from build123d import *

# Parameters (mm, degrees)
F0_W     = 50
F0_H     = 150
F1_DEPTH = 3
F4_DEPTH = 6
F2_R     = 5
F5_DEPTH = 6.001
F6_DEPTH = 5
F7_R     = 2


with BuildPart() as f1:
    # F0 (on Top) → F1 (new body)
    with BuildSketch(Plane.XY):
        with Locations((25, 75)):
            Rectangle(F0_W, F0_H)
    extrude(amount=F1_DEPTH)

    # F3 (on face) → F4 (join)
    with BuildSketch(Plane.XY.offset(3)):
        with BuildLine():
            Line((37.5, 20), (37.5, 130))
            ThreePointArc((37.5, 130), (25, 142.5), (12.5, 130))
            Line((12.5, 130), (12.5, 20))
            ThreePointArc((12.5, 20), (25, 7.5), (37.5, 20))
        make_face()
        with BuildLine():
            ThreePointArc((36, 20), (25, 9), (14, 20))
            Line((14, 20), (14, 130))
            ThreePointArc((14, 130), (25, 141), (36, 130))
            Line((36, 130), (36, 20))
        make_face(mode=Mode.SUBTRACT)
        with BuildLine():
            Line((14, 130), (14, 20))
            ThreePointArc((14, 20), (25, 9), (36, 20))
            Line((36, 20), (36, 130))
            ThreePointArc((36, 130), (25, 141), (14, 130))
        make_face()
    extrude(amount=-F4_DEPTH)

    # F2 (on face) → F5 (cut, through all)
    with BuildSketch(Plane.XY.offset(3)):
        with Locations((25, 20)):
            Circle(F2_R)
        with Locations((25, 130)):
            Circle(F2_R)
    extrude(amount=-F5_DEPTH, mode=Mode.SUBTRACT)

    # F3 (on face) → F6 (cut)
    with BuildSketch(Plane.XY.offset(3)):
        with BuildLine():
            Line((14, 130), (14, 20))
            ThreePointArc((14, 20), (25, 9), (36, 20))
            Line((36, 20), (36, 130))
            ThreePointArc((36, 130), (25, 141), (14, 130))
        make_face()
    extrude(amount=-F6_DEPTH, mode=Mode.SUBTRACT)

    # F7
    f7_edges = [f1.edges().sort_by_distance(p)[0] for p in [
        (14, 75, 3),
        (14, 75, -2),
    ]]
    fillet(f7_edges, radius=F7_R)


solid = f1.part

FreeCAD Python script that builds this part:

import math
import FreeCAD as App
import Part
import Sketcher

V = App.Vector
Q = App.Units.Quantity


def edges_at(feature, points):
    """Names of the edges that pass closest to the given points."""
    edges = feature.Shape.Edges
    near = lambda p: min(range(len(edges)), key=lambda i: edges[i].distToShape(Part.Vertex(*p))[0])
    return sorted({f"Edge{near(p) + 1}" for p in points})


def add_polygon(sketch, points):
    """Adds a closed chain of lines whose ends are joined by coincident constraints."""
    first, n = sketch.GeometryCount, len(points)
    for a, b in zip(points, points[1:] + points[:1]):
        sketch.addGeometry(Part.LineSegment(App.Vector(*a, 0), App.Vector(*b, 0)), False)
    for i in range(n):
        sketch.addConstraint(Sketcher.Constraint("Coincident", first + i, 2, first + (i + 1) % n, 1))

doc = App.newDocument("Part")
body = doc.addObject("PartDesign::Body", "Body")

sketch1 = doc.addObject("Sketcher::SketchObject", "Sketch")
body.addObject(sketch1)
sketch1.AttachmentSupport = (doc.XY_Plane, [""])
sketch1.MapMode = "FlatFace"
add_polygon(sketch1, [(0, 150), (0, 0), (50, 0), (50, 150)])
sketch1.addConstraint(Sketcher.Constraint("Vertical", 0))
sketch1.addConstraint(Sketcher.Constraint("Horizontal", 1))
sketch1.addConstraint(Sketcher.Constraint("Vertical", 2))
sketch1.addConstraint(Sketcher.Constraint("Horizontal", 3))
sketch1.addConstraint(Sketcher.Constraint("Coincident", 0, 2, -1, 1))
sketch1.addConstraint(Sketcher.Constraint("DistanceX", 1, 1, 1, 2, Q("50 mm")))
sketch1.addConstraint(Sketcher.Constraint("DistanceY", 0, 2, 0, 1, Q("150 mm")))
pad1 = doc.addObject("PartDesign::Pad", "Pad")
body.addObject(pad1)
pad1.Profile = sketch1
pad1.Length = 3

sketch2 = doc.addObject("Sketcher::SketchObject", "Sketch001")
body.addObject(sketch2)
sketch2.AttachmentSupport = (doc.XY_Plane, [""])
sketch2.MapMode = "FlatFace"
sketch2.AttachmentOffset = App.Placement(V(0, 0, 3), App.Rotation())
sketch2.addGeometry(Part.LineSegment(V(38, 20, 0), V(38, 130, 0)), False)
sketch2.addGeometry(Part.ArcOfCircle(Part.Circle(V(25, 130, 0), V(0, 0, 1), 12), math.radians(0), math.radians(180)), False)
sketch2.addGeometry(Part.LineSegment(V(12, 130, 0), V(12, 20, 0)), False)
sketch2.addGeometry(Part.ArcOfCircle(Part.Circle(V(25, 20, 0), V(0, 0, 1), 12), math.radians(180), math.radians(360)), False)
sketch2.addConstraint(Sketcher.Constraint("Tangent", 0, 2, 1, 1))
sketch2.addConstraint(Sketcher.Constraint("Tangent", 1, 2, 2, 1))
sketch2.addConstraint(Sketcher.Constraint("Tangent", 2, 2, 3, 1))
sketch2.addConstraint(Sketcher.Constraint("Tangent", 3, 2, 0, 1))
sketch2.addConstraint(Sketcher.Constraint("Vertical", 0))
sketch2.addConstraint(Sketcher.Constraint("Vertical", 2))
sketch2.addConstraint(Sketcher.Constraint("Radius", 1, Q("12.5 mm")))
sketch2.addConstraint(Sketcher.Constraint("DistanceY", 0, 1, 0, 2, Q("110 mm")))
sketch2.addConstraint(Sketcher.Constraint("DistanceX", -1, 1, 1, 3, Q("25 mm")))
sketch2.addConstraint(Sketcher.Constraint("DistanceY", -1, 1, 1, 3, Q("130 mm")))
pad2 = doc.addObject("PartDesign::Pad", "Pad001")
body.addObject(pad2)
pad2.Profile = sketch2
pad2.Length = 6
pad2.Reversed = True

sketch3 = doc.addObject("Sketcher::SketchObject", "Sketch002")
body.addObject(sketch3)
sketch3.AttachmentSupport = (doc.XY_Plane, [""])
sketch3.MapMode = "FlatFace"
sketch3.AttachmentOffset = App.Placement(V(0, 0, 3), App.Rotation())
sketch3.addGeometry(Part.Circle(V(25, 20, 0), V(0, 0, 1), 5), False)
sketch3.addGeometry(Part.Circle(V(25, 130, 0), V(0, 0, 1), 5), False)
sketch3.addConstraint(Sketcher.Constraint("Equal", 0, 1))
sketch3.addConstraint(Sketcher.Constraint("Vertical", 0, 3, 1, 3))
sketch3.addConstraint(Sketcher.Constraint("Diameter", 0, Q("10 mm")))
sketch3.addConstraint(Sketcher.Constraint("DistanceX", -1, 1, 0, 3, Q("25 mm")))
sketch3.addConstraint(Sketcher.Constraint("DistanceY", -1, 1, 0, 3, Q("20 mm")))
sketch3.addConstraint(Sketcher.Constraint("DistanceY", -1, 1, 1, 3, Q("130 mm")))
pocket1 = doc.addObject("PartDesign::Pocket", "Pocket")
body.addObject(pocket1)
pocket1.Profile = sketch3
pocket1.Type = "ThroughAll"

sketch4 = doc.addObject("Sketcher::SketchObject", "Sketch003")
body.addObject(sketch4)
sketch4.AttachmentSupport = (doc.XY_Plane, [""])
sketch4.MapMode = "FlatFace"
sketch4.AttachmentOffset = App.Placement(V(0, 0, 3), App.Rotation())
sketch4.addGeometry(Part.LineSegment(V(14, 130, 0), V(14, 20, 0)), False)
sketch4.addGeometry(Part.ArcOfCircle(Part.Circle(V(25, 20, 0), V(0, 0, 1), 11), math.radians(180), math.radians(360)), False)
sketch4.addGeometry(Part.LineSegment(V(36, 20, 0), V(36, 130, 0)), False)
sketch4.addGeometry(Part.ArcOfCircle(Part.Circle(V(25, 130, 0), V(0, 0, 1), 11), math.radians(0), math.radians(180)), False)
sketch4.addConstraint(Sketcher.Constraint("Tangent", 0, 2, 1, 1))
sketch4.addConstraint(Sketcher.Constraint("Tangent", 1, 2, 2, 1))
sketch4.addConstraint(Sketcher.Constraint("Tangent", 2, 2, 3, 1))
sketch4.addConstraint(Sketcher.Constraint("Tangent", 3, 2, 0, 1))
sketch4.addConstraint(Sketcher.Constraint("Vertical", 0))
sketch4.addConstraint(Sketcher.Constraint("Vertical", 2))
sketch4.addConstraint(Sketcher.Constraint("Radius", 1, Q("11 mm")))
sketch4.addConstraint(Sketcher.Constraint("DistanceY", 0, 2, 0, 1, Q("110 mm")))
sketch4.addConstraint(Sketcher.Constraint("DistanceX", -1, 1, 1, 3, Q("25 mm")))
sketch4.addConstraint(Sketcher.Constraint("DistanceY", -1, 1, 1, 3, Q("20 mm")))
pocket2 = doc.addObject("PartDesign::Pocket", "Pocket001")
body.addObject(pocket2)
pocket2.Profile = sketch4
pocket2.Length = 5
doc.recompute()

fillet = doc.addObject("PartDesign::Fillet", "Fillet")
body.addObject(fillet)
fillet.Base = (pocket2, edges_at(pocket2, [(14, 75, 3), (14, 75, -2)]))
fillet.Radius = 2

doc.recompute()
